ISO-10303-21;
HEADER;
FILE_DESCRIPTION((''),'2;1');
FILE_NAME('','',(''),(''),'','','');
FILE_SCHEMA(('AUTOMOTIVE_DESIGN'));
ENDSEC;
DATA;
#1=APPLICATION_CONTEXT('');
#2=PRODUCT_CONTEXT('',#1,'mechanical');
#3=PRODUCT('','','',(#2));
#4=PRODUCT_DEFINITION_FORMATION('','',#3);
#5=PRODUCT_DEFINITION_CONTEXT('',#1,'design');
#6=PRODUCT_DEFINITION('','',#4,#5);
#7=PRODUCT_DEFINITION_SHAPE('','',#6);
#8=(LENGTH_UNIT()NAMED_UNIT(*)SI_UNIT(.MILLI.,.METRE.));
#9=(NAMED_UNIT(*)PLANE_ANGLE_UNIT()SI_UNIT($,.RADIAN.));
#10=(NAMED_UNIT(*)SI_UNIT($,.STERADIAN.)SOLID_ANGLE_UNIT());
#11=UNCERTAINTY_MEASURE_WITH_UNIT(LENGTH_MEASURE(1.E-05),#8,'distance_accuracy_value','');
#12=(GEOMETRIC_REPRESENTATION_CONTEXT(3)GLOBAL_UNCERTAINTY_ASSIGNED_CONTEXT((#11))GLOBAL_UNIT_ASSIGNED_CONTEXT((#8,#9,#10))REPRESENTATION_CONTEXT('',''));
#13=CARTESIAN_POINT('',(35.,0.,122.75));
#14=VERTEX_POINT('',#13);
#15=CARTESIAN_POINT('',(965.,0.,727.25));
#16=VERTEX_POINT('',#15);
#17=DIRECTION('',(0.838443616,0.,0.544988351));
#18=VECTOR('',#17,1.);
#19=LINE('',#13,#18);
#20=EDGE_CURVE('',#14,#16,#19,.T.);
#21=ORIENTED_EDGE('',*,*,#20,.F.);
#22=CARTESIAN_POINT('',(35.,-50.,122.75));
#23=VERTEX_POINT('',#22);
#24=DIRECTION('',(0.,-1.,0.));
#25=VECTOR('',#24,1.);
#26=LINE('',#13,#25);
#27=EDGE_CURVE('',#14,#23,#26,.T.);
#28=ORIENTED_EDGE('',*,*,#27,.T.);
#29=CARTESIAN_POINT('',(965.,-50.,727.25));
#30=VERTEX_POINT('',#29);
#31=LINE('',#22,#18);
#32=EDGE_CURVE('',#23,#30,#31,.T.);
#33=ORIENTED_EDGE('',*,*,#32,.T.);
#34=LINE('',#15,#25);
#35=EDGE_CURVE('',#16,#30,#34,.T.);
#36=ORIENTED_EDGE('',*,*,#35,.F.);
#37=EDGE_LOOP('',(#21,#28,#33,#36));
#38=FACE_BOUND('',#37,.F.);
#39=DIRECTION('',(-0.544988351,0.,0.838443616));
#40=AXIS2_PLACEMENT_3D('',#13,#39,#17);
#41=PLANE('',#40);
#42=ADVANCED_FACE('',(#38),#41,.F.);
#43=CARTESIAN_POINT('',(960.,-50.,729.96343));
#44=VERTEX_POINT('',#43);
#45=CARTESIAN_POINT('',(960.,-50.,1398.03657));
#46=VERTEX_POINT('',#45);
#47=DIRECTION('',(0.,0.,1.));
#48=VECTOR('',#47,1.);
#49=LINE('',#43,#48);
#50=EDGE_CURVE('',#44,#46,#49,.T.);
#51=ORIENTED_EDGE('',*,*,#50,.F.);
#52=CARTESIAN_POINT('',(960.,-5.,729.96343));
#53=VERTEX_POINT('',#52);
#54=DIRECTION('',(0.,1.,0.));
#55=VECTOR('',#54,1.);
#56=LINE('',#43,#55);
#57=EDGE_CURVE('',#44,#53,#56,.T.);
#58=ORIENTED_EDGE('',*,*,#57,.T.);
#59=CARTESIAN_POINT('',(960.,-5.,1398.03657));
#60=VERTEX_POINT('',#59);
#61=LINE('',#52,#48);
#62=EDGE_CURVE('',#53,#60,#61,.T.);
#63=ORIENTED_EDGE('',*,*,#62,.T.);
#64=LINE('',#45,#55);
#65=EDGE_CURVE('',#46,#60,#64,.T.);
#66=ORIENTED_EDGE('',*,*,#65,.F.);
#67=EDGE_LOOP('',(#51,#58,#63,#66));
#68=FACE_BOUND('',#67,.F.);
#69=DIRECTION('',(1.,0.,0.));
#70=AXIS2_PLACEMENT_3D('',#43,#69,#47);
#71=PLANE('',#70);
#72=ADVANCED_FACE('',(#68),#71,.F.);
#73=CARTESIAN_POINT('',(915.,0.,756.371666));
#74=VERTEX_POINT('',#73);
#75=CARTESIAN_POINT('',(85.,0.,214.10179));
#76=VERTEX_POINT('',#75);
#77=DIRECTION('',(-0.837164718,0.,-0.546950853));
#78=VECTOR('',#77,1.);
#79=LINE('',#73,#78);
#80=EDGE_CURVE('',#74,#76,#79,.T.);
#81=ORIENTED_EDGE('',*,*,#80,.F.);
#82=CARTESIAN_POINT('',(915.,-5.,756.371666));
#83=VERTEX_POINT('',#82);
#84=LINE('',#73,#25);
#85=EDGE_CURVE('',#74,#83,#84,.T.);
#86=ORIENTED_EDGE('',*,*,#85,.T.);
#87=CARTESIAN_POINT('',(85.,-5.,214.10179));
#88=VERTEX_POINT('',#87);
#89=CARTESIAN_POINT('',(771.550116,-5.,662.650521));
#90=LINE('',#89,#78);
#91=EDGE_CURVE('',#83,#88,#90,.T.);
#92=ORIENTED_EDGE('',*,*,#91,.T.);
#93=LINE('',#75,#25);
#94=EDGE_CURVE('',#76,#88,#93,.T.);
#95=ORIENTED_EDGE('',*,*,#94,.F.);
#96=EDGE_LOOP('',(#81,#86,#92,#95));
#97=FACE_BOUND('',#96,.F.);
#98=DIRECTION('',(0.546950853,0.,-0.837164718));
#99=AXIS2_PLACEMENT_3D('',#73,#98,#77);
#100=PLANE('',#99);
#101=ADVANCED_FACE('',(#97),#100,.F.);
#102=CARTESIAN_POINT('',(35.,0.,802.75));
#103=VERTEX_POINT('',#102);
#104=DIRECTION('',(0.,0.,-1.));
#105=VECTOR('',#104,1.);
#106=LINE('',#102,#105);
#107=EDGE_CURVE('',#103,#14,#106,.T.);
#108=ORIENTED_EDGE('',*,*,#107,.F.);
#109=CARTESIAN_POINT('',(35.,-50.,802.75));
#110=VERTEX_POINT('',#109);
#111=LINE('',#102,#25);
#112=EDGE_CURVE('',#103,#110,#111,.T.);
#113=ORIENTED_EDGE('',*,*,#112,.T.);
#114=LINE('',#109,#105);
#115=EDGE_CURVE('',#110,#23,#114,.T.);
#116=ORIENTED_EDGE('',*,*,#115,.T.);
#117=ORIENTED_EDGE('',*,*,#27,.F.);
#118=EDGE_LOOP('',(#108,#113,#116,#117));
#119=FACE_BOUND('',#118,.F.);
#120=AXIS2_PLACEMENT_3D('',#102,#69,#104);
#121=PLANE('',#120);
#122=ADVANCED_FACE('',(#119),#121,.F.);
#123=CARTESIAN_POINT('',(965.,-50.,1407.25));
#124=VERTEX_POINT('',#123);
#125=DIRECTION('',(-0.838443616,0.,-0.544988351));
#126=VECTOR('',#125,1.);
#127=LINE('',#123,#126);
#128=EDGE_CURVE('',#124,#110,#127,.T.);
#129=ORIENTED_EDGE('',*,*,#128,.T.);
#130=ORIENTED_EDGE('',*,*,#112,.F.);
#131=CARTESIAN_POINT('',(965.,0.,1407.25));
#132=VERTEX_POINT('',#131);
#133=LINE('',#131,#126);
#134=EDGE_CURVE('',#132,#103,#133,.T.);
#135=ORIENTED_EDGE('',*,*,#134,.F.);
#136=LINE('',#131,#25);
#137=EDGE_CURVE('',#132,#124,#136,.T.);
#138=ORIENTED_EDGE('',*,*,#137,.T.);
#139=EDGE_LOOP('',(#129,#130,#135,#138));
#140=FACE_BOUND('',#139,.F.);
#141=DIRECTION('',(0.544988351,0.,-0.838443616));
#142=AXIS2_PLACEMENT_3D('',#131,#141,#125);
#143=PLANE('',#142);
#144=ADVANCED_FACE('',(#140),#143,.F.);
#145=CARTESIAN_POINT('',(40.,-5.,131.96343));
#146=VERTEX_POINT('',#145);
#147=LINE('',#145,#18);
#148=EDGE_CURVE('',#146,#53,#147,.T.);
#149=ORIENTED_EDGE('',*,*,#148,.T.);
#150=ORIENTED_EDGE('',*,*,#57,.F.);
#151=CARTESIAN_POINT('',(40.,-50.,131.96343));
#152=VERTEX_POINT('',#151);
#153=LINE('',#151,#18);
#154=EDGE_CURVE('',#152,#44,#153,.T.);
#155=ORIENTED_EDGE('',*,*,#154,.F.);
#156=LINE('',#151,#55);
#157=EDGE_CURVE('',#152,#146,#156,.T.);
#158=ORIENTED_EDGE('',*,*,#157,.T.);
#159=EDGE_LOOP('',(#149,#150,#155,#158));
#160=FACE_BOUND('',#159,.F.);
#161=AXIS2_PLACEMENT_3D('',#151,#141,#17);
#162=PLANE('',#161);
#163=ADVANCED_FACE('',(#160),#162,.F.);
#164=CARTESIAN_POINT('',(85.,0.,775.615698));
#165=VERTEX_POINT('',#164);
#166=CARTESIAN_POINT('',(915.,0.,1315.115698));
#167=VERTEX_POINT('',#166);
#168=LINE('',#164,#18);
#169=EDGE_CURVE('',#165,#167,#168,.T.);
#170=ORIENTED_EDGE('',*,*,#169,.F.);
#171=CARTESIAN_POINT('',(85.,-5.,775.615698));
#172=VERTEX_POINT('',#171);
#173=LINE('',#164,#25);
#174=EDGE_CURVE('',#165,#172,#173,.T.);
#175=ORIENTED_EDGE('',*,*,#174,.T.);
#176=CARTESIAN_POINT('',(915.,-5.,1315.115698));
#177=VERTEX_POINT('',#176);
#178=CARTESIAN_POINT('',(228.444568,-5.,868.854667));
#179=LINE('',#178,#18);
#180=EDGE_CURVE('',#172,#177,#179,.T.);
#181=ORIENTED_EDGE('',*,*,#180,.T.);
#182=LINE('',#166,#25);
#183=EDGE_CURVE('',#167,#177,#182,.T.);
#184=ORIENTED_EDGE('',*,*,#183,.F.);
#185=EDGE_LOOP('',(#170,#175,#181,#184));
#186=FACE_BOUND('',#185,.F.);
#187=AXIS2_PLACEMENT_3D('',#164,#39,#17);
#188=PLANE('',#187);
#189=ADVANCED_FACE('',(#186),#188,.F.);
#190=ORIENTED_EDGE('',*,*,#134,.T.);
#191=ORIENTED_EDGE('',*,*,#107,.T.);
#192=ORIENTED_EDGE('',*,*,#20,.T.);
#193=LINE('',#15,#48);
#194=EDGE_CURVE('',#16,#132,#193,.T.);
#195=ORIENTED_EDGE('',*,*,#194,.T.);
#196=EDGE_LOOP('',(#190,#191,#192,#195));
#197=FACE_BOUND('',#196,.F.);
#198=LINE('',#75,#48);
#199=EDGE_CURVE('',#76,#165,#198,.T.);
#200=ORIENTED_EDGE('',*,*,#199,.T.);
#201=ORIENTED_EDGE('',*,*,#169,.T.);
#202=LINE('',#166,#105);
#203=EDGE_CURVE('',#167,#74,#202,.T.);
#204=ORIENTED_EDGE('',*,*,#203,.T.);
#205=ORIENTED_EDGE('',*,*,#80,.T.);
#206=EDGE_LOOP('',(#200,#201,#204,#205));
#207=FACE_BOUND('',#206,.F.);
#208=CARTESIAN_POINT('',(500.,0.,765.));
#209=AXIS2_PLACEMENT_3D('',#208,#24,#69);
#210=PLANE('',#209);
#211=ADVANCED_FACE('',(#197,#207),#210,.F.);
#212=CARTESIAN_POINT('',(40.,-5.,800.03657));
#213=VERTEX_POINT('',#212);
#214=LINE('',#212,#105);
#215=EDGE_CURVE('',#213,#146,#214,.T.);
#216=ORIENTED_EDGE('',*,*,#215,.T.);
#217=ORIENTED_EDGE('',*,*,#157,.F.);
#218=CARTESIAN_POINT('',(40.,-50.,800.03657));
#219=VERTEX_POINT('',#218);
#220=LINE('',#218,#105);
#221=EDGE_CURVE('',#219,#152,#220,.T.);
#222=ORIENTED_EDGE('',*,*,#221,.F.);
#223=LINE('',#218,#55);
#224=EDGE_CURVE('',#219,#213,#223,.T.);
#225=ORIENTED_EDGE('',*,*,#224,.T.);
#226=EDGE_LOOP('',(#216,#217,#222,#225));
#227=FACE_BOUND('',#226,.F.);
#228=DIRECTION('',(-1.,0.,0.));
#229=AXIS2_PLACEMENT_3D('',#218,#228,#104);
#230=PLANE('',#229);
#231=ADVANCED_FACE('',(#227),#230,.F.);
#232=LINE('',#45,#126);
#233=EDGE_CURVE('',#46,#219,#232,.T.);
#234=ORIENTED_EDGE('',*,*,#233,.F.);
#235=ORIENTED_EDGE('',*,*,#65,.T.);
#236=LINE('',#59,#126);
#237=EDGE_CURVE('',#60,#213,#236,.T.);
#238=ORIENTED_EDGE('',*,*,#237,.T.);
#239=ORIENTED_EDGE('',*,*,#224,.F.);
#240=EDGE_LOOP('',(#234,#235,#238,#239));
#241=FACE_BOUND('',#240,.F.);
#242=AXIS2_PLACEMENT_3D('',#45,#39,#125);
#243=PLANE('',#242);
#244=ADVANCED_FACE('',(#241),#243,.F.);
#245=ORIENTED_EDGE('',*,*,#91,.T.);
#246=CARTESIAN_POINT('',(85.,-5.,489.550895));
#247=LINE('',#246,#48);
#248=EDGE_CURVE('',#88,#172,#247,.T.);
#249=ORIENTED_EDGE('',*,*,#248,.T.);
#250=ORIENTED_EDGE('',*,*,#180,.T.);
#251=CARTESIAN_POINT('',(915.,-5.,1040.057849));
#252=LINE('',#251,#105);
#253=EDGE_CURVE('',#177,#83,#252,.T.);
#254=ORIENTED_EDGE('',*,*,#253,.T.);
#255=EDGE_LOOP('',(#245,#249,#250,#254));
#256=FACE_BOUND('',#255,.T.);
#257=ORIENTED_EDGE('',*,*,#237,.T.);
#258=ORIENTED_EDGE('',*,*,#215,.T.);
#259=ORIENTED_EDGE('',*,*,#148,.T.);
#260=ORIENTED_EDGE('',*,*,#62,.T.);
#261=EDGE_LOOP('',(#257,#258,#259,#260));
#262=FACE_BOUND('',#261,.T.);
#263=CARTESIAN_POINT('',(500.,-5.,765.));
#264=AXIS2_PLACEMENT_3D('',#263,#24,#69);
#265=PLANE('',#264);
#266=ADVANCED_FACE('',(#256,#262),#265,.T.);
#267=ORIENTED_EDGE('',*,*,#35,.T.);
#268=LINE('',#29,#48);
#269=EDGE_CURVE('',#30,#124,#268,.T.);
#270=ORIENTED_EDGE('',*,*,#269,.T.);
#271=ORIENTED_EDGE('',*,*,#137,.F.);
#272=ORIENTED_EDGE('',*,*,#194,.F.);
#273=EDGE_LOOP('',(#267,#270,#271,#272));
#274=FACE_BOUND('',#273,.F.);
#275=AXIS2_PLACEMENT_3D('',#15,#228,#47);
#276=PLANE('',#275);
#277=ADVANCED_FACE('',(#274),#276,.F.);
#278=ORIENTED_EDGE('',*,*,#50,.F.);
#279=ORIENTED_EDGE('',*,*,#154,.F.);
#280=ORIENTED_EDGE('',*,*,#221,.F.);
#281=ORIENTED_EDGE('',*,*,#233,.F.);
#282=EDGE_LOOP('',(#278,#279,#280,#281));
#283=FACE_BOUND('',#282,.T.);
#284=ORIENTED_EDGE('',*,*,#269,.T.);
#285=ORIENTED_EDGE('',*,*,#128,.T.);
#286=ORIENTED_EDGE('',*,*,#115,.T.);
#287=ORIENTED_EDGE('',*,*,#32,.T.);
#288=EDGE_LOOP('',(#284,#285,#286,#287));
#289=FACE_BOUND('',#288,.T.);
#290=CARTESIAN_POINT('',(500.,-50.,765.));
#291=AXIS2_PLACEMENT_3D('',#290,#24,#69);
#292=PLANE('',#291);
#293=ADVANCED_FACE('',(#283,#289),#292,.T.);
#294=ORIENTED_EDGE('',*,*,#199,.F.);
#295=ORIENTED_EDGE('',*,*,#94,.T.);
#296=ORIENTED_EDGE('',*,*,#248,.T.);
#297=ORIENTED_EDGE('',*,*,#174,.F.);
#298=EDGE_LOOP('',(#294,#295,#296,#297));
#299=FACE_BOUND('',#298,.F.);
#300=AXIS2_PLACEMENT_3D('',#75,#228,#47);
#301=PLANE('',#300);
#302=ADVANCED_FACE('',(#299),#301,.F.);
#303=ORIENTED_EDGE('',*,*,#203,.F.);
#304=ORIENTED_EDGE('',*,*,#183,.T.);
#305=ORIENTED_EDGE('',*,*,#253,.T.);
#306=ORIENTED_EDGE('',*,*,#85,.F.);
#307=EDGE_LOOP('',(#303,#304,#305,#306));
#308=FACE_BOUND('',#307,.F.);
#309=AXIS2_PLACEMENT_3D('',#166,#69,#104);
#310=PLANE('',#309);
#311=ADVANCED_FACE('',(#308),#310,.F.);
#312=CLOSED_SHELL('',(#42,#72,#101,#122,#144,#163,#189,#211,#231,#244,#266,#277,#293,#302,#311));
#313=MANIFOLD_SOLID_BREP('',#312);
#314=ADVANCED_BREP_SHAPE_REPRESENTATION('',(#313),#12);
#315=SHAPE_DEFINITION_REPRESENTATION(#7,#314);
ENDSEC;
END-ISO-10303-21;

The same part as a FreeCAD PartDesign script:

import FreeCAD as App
import Part
import Sketcher

V = App.Vector
Q = App.Units.Quantity

doc = App.newDocument("Part")
body = doc.addObject("PartDesign::Body", "Body")

sketch1 = body.newObject("Sketcher::SketchObject", "Sketch")
sketch1.AttachmentSupport = (doc.getObject("XZ_Plane"), [""])
sketch1.MapMode = "FlatFace"
sketch1.addGeometry([
    Part.LineSegment(V(35, 803, 0), V(35, 123, 0)),
    Part.LineSegment(V(35, 123, 0), V(965, 727, 0)),
    Part.LineSegment(V(965, 727, 0), V(965, 1407, 0)),
    Part.LineSegment(V(965, 1407, 0), V(35, 803, 0)),
    Part.LineSegment(V(915, 1315, 0), V(915, 756, 0)),
    Part.LineSegment(V(915, 756, 0), V(85, 214, 0)),
    Part.LineSegment(V(85, 214, 0), V(85, 776, 0)),
    Part.LineSegment(V(85, 776, 0), V(915, 1315, 0)),
], False)
sketch1.addConstraint([
    Sketcher.Constraint("Coincident", 0, 2, 1, 1),
    Sketcher.Constraint("Coincident", 1, 2, 2, 1),
    Sketcher.Constraint("Coincident", 2, 2, 3, 1),
    Sketcher.Constraint("Coincident", 3, 2, 0, 1),
    Sketcher.Constraint("Coincident", 4, 2, 5, 1),
    Sketcher.Constraint("Coincident", 5, 2, 6, 1),
    Sketcher.Constraint("Coincident", 6, 2, 7, 1),
    Sketcher.Constraint("Coincident", 7, 2, 4, 1),
    Sketcher.Constraint("Vertical", 0),
    Sketcher.Constraint("Vertical", 2),
    Sketcher.Constraint("Vertical", 4),
    Sketcher.Constraint("Vertical", 6),
    Sketcher.Constraint("Parallel", 1, 3),
    Sketcher.Constraint("Parallel", 3, 7),
    Sketcher.Constraint("DistanceY", 0, 2, 0, 1, Q("680 mm")),
    Sketcher.Constraint("DistanceX", -1, 1, 0, 2, Q("35 mm")),
    Sketcher.Constraint("DistanceX", -1, 1, 1, 2, Q("965 mm")),
    Sketcher.Constraint("DistanceX", -1, 1, 4, 2, Q("915 mm")),
    Sketcher.Constraint("DistanceX", -1, 1, 5, 2, Q("85 mm")),
    Sketcher.Constraint("DistanceY", 0, 2, 1, 2, Q("604.5 mm")),
    Sketcher.Constraint("DistanceY", -1, 1, 0, 2, Q("122.75 mm")),
    Sketcher.Constraint("DistanceY", -1, 1, 6, 2, Q("775.615698 mm")),
    Sketcher.Constraint("DistanceY", 4, 2, 4, 1, Q("558.744032 mm")),
    Sketcher.Constraint("DistanceY", 6, 1, 6, 2, Q("561.513908 mm")),
])
pad1 = body.newObject("PartDesign::Pad", "Pad")
pad1.Profile = sketch1
pad1.Length = 50

sketch2 = body.newObject("Sketcher::SketchObject", "Sketch001")
sketch2.AttachmentSupport = (doc.getObject("XZ_Plane"), [""])
sketch2.MapMode = "FlatFace"
sketch2.AttachmentOffset = App.Placement(V(0, 0, 50), App.Rotation())
sketch2.addGeometry([
    Part.LineSegment(V(40, 800, 0), V(40, 132, 0)),
    Part.LineSegment(V(40, 132, 0), V(960, 730, 0)),
    Part.LineSegment(V(960, 730, 0), V(960, 1398, 0)),
    Part.LineSegment(V(960, 1398, 0), V(40, 800, 0)),
], False)
sketch2.addConstraint([
    Sketcher.Constraint("Coincident", 0, 2, 1, 1),
    Sketcher.Constraint("Coincident", 1, 2, 2, 1),
    Sketcher.Constraint("Coincident", 2, 2, 3, 1),
    Sketcher.Constraint("Coincident", 3, 2, 0, 1),
    Sketcher.Constraint("Vertical", 0),
    Sketcher.Constraint("Vertical", 2),
    Sketcher.Constraint("Parallel", 1, 3),
    Sketcher.Constraint("DistanceX", -1, 1, 0, 2, Q("40 mm")),
    Sketcher.Constraint("DistanceX", -1, 1, 1, 2, Q("960 mm")),
    Sketcher.Constraint("DistanceY", 0, 2, 1, 2, Q("598 mm")),
    Sketcher.Constraint("DistanceY", 0, 2, 0, 1, Q("668.07314 mm")),
    Sketcher.Constraint("DistanceY", -1, 1, 0, 2, Q("131.96343 mm")),
])
pocket1 = body.newObject("PartDesign::Pocket", "Pocket")
pocket1.Profile = sketch2
pocket1.Length = 45

doc.recompute()
